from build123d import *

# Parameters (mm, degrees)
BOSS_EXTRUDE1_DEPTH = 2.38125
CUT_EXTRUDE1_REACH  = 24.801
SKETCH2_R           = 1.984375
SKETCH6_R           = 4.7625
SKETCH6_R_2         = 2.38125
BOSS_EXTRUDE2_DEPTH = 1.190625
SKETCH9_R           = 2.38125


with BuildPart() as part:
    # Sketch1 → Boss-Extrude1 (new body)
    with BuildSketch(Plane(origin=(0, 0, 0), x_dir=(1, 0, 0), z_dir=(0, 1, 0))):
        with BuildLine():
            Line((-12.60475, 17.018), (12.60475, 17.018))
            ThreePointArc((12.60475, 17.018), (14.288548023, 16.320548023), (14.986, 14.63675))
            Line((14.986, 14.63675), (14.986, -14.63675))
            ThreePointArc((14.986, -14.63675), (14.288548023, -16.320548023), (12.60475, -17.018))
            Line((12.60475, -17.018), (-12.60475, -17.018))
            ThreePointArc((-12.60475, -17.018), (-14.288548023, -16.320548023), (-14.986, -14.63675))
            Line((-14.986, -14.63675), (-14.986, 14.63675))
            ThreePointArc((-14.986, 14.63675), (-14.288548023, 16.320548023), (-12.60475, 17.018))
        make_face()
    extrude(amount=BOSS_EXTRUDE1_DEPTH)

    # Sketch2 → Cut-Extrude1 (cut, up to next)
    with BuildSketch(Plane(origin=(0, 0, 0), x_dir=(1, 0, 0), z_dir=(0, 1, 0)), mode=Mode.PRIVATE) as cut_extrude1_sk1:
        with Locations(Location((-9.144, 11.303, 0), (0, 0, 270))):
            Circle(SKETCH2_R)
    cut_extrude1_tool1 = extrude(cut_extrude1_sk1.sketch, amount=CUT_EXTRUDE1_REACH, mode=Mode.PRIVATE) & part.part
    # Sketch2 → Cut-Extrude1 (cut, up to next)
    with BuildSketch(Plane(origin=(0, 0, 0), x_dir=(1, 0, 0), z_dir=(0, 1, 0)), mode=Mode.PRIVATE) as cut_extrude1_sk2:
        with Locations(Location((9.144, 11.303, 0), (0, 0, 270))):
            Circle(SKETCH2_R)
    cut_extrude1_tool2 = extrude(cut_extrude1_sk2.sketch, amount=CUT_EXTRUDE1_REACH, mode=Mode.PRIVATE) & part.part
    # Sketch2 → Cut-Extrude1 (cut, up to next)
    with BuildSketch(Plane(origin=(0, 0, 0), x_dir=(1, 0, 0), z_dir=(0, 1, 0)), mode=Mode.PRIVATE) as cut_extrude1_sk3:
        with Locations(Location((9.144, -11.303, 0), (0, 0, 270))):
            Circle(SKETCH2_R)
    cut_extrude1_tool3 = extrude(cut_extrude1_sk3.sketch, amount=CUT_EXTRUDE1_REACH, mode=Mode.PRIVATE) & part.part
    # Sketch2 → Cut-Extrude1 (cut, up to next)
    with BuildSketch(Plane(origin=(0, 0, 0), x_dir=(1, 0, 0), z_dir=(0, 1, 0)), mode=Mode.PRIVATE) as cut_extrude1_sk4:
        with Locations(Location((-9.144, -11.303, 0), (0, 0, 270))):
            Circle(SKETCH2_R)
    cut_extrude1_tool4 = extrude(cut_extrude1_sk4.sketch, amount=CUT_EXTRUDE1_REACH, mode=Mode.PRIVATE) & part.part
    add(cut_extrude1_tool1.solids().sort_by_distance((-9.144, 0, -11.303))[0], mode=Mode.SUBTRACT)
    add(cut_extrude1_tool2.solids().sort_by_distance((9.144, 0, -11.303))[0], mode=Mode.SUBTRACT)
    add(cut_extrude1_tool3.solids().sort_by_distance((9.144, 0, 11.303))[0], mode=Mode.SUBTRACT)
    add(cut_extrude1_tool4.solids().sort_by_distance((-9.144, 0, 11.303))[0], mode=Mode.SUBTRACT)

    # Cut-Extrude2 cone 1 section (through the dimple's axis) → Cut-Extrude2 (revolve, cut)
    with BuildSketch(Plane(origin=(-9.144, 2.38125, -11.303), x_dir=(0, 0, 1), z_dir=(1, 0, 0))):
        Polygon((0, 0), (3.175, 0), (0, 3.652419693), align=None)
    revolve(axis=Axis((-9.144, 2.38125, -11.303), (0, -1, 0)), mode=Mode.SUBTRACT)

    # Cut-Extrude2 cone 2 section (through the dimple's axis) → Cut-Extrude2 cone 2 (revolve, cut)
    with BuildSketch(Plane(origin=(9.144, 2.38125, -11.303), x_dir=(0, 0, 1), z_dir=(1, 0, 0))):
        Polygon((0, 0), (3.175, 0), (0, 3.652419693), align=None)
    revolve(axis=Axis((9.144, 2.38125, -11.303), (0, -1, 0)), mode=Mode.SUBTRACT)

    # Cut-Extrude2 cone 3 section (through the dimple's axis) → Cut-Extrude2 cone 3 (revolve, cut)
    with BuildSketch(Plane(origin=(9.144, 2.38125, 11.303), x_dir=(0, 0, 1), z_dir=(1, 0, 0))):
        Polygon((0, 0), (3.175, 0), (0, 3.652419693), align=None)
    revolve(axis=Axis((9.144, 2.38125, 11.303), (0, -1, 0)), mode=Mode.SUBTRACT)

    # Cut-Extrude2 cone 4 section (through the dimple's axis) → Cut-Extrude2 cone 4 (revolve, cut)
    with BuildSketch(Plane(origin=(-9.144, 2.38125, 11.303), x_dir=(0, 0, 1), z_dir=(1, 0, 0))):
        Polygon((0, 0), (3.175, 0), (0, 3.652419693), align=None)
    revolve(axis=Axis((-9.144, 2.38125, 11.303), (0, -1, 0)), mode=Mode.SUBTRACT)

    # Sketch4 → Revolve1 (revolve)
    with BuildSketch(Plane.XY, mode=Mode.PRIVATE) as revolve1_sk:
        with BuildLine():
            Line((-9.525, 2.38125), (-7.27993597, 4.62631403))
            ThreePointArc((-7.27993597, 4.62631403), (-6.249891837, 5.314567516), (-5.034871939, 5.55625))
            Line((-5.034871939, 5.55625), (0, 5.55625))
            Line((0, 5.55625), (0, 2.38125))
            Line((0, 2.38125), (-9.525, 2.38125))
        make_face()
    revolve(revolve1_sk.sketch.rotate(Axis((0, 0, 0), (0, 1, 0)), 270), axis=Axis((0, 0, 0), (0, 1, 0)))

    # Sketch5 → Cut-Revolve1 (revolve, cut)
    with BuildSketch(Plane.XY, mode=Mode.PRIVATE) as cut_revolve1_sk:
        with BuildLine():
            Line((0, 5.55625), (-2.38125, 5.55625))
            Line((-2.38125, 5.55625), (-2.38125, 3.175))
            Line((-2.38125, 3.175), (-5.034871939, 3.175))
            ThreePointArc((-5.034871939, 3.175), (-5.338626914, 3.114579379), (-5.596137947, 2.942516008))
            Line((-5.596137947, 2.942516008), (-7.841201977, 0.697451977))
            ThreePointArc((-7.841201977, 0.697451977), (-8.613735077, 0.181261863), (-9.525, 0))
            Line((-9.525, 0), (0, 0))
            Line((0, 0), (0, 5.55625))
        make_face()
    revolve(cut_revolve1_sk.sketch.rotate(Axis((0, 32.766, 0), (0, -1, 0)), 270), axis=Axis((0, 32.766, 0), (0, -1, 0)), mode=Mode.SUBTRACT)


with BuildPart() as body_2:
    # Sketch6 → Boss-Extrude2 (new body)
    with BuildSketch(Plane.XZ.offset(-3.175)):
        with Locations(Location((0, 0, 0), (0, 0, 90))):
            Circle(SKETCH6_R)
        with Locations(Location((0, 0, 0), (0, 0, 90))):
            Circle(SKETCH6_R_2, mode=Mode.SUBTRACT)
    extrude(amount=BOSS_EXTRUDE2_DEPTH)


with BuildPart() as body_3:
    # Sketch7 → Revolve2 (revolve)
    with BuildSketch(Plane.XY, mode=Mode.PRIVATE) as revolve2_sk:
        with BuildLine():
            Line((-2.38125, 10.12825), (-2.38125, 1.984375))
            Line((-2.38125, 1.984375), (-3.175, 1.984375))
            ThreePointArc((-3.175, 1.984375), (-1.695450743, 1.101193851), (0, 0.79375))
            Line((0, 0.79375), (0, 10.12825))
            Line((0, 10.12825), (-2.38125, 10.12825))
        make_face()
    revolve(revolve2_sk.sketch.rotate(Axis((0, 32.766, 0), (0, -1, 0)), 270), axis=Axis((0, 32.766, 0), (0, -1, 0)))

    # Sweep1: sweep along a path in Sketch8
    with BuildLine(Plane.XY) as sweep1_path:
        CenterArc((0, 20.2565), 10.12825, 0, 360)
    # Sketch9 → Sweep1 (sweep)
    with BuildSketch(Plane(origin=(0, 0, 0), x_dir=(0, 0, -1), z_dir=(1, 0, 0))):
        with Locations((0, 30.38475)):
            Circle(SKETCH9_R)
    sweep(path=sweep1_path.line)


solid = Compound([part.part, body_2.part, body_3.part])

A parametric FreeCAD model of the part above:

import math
import FreeCAD as App
import Part
import Sketcher

V = App.Vector
Q = App.Units.Quantity

doc = App.newDocument("Part")
body = doc.addObject("PartDesign::Body", "Body")

# Sketch on XZ plane
sketch1 = body.newObject("Sketcher::SketchObject", "Sketch")
sketch1.AttachmentSupport = (doc.getObject("XZ_Plane"), [""])
sketch1.MapMode = "FlatFace"
sketch1.addGeometry(Part.LineSegment(V(12.6, -17, 0), V(-12.6, -17, 0)), False)
sketch1.addGeometry(Part.ArcOfCircle(Part.Circle(V(-12.6, -14.6, 0), V(0, 0, 1), 2.4), math.radians(180), math.radians(270)), False)
sketch1.addGeometry(Part.LineSegment(V(-15, -14.6, 0), V(-15, 14.6, 0)), False)
sketch1.addGeometry(Part.ArcOfCircle(Part.Circle(V(-12.6, 14.6, 0), V(0, 0, 1), 2.4), math.radians(90), math.radians(180)), False)
sketch1.addGeometry(Part.LineSegment(V(-12.6, 17, 0), V(12.6, 17, 0)), False)
sketch1.addGeometry(Part.ArcOfCircle(Part.Circle(V(12.6, 14.6, 0), V(0, 0, 1), 2.4), math.radians(0), math.radians(90)), False)
sketch1.addGeometry(Part.LineSegment(V(15, 14.6, 0), V(15, -14.6, 0)), False)
sketch1.addGeometry(Part.ArcOfCircle(Part.Circle(V(12.6, -14.6, 0), V(0, 0, 1), 2.4), math.radians(-90), math.radians(0)), False)
sketch1.addConstraint(Sketcher.Constraint("Tangent", 0, 2, 1, 2))
sketch1.addConstraint(Sketcher.Constraint("Tangent", 1, 1, 2, 1))
sketch1.addConstraint(Sketcher.Constraint("Tangent", 2, 2, 3, 2))
sketch1.addConstraint(Sketcher.Constraint("Tangent", 3, 1, 4, 1))
sketch1.addConstraint(Sketcher.Constraint("Tangent", 4, 2, 5, 2))
sketch1.addConstraint(Sketcher.Constraint("Tangent", 5, 1, 6, 1))
sketch1.addConstraint(Sketcher.Constraint("Tangent", 6, 2, 7, 2))
sketch1.addConstraint(Sketcher.Constraint("Tangent", 7, 1, 0, 1))
sketch1.addConstraint(Sketcher.Constraint("Horizontal", 0))
sketch1.addConstraint(Sketcher.Constraint("Vertical", 2))
sketch1.addConstraint(Sketcher.Constraint("Horizontal", 4))
sketch1.addConstraint(Sketcher.Constraint("Vertical", 6))
sketch1.addConstraint(Sketcher.Constraint("Equal", 1, 3))
sketch1.addConstraint(Sketcher.Constraint("Equal", 3, 5))
sketch1.addConstraint(Sketcher.Constraint("Equal", 5, 7))
sketch1.addConstraint(Sketcher.Constraint("Symmetric", 1, 3, 5, 3, -1, 1))
sketch1.addConstraint(Sketcher.Constraint("Radius", 1, Q("0.09375 in")))
sketch1.addConstraint(Sketcher.Constraint("DistanceY", 0, 2, -1, 1, Q("0.67 in")))
sketch1.addConstraint(Sketcher.Constraint("DistanceX", 1, 1, -1, 1, Q("0.59 in")))
pad1 = body.newObject("PartDesign::Pad", "Pad")
pad1.Profile = sketch1
pad1.Length = Q("0.09375 in")
pad1.Reversed = True

# Sketch on XZ plane
sketch2 = body.newObject("Sketcher::SketchObject", "Sketch001")
sketch2.AttachmentSupport = (doc.getObject("XZ_Plane"), [""])
sketch2.MapMode = "FlatFace"
sketch2.addGeometry(Part.Circle(V(-9.1, -11.3, 0), V(0, 0, 1), 2), False)
sketch2.addConstraint(Sketcher.Constraint("Diameter", 0, Q("0.15625 in")))
sketch2.addConstraint(Sketcher.Constraint("DistanceX", 0, 3, -1, 1, Q("0.36 in")))
sketch2.addConstraint(Sketcher.Constraint("DistanceY", 0, 3, -1, 1, Q("0.445 in")))
pocket1 = body.newObject("PartDesign::Pocket", "Pocket")
pocket1.Profile = sketch2
pocket1.Type = "UpToFirst"

# Sketch on XZ plane
sketch3 = body.newObject("Sketcher::SketchObject", "Sketch002")
sketch3.AttachmentSupport = (doc.getObject("XZ_Plane"), [""])
sketch3.MapMode = "FlatFace"
sketch3.addGeometry(Part.Circle(V(9.1, -11.3, 0), V(0, 0, 1), 2), False)
sketch3.addConstraint(Sketcher.Constraint("Diameter", 0, Q("0.15625 in")))
sketch3.addConstraint(Sketcher.Constraint("DistanceX", -1, 1, 0, 3, Q("0.36 in")))
sketch3.addConstraint(Sketcher.Constraint("DistanceY", 0, 3, -1, 1, Q("0.445 in")))
pocket2 = body.newObject("PartDesign::Pocket", "Pocket001")
pocket2.Profile = sketch3
pocket2.Type = "UpToFirst"

# Sketch on XZ plane
sketch4 = body.newObject("Sketcher::SketchObject", "Sketch003")
sketch4.AttachmentSupport = (doc.getObject("XZ_Plane"), [""])
sketch4.MapMode = "FlatFace"
sketch4.addGeometry(Part.Circle(V(9.1, 11.3, 0), V(0, 0, 1), 2), False)
sketch4.addConstraint(Sketcher.Constraint("Diameter", 0, Q("0.15625 in")))
sketch4.addConstraint(Sketcher.Constraint("DistanceX", -1, 1, 0, 3, Q("0.36 in")))
sketch4.addConstraint(Sketcher.Constraint("DistanceY", -1, 1, 0, 3, Q("0.445 in")))
pocket3 = body.newObject("PartDesign::Pocket", "Pocket002")
pocket3.Profile = sketch4
pocket3.Type = "UpToFirst"

# Sketch on XZ plane
sketch5 = body.newObject("Sketcher::SketchObject", "Sketch004")
sketch5.AttachmentSupport = (doc.getObject("XZ_Plane"), [""])
sketch5.MapMode = "FlatFace"
sketch5.addGeometry(Part.Circle(V(-9.1, 11.3, 0), V(0, 0, 1), 2), False)
sketch5.addConstraint(Sketcher.Constraint("Diameter", 0, Q("0.15625 in")))
sketch5.addConstraint(Sketcher.Constraint("DistanceX", 0, 3, -1, 1, Q("0.36 in")))
sketch5.addConstraint(Sketcher.Constraint("DistanceY", -1, 1, 0, 3, Q("0.445 in")))
pocket4 = body.newObject("PartDesign::Pocket", "Pocket003")
pocket4.Profile = sketch5
pocket4.Type = "UpToFirst"

# Sketch on YZ plane
sketch6 = body.newObject("Sketcher::SketchObject", "Sketch005")
sketch6.AttachmentSupport = (doc.getObject("YZ_Plane"), [""])
sketch6.MapMode = "FlatFace"
sketch6.AttachmentOffset = App.Placement(V(0, 0, -0.36 * 25.4), App.Rotation())
sketch6.addGeometry(Part.LineSegment(V(2.4, -11.3, 0), V(2.4, -8.1, 0)), False)
sketch6.addGeometry(Part.LineSegment(V(2.4, -8.1, 0), V(-1.3, -11.3, 0)), False)
sketch6.addGeometry(Part.LineSegment(V(-1.3, -11.3, 0), V(2.4, -11.3, 0)), False)
sketch6.addGeometry(Part.LineSegment(V(2.4, -11.3, 0), V(-1.3, -11.3, 0)), True)  # axis
sketch6.addConstraint(Sketcher.Constraint("Coincident", 0, 2, 1, 1))
sketch6.addConstraint(Sketcher.Constraint("Coincident", 1, 2, 2, 1))
sketch6.addConstraint(Sketcher.Constraint("Coincident", 2, 2, 0, 1))
sketch6.addConstraint(Sketcher.Constraint("Vertical", 0))
sketch6.addConstraint(Sketcher.Constraint("Horizontal", 2))
sketch6.addConstraint(Sketcher.Constraint("Horizontal", 3))
sketch6.addConstraint(Sketcher.Constraint("Coincident", 3, 1, 2, 2))
sketch6.addConstraint(Sketcher.Constraint("Equal", 2, 3))
sketch6.addConstraint(Sketcher.Constraint("Angle", 1, Q("-139 deg")))
sketch6.addConstraint(Sketcher.Constraint("DistanceY", 0, 1, 0, 2, Q("0.125 in")))
sketch6.addConstraint(Sketcher.Constraint("DistanceY", 0, 2, -1, 1, Q("0.32 in")))
sketch6.addConstraint(Sketcher.Constraint("DistanceX", -1, 1, 0, 2, Q("0.09375 in")))
groove = body.newObject("PartDesign::Groove", "Groove")
groove.Profile = sketch6
groove.ReferenceAxis = (sketch6, ["Axis0"])
groove.Angle = 360

# Sketch on YZ plane
sketch7 = body.newObject("Sketcher::SketchObject", "Sketch006")
sketch7.AttachmentSupport = (doc.getObject("YZ_Plane"), [""])
sketch7.MapMode = "FlatFace"
sketch7.AttachmentOffset = App.Placement(V(0, 0, 0.36 * 25.4), App.Rotation())
sketch7.addGeometry(Part.LineSegment(V(2.4, -11.3, 0), V(2.4, -8.1, 0)), False)
sketch7.addGeometry(Part.LineSegment(V(2.4, -8.1, 0), V(-1.3, -11.3, 0)), False)
sketch7.addGeometry(Part.LineSegment(V(-1.3, -11.3, 0), V(2.4, -11.3, 0)), False)
sketch7.addGeometry(Part.LineSegment(V(2.4, -11.3, 0), V(-1.3, -11.3, 0)), True)  # axis
sketch7.addConstraint(Sketcher.Constraint("Coincident", 0, 2, 1, 1))
sketch7.addConstraint(Sketcher.Constraint("Coincident", 1, 2, 2, 1))
sketch7.addConstraint(Sketcher.Constraint("Coincident", 2, 2, 0, 1))
sketch7.addConstraint(Sketcher.Constraint("Vertical", 0))
sketch7.addConstraint(Sketcher.Constraint("Horizontal", 2))
sketch7.addConstraint(Sketcher.Constraint("Horizontal", 3))
sketch7.addConstraint(Sketcher.Constraint("Coincident", 3, 1, 2, 2))
sketch7.addConstraint(Sketcher.Constraint("Equal", 2, 3))
sketch7.addConstraint(Sketcher.Constraint("Angle", 1, Q("-139 deg")))
sketch7.addConstraint(Sketcher.Constraint("DistanceY", 0, 1, 0, 2, Q("0.125 in")))
sketch7.addConstraint(Sketcher.Constraint("DistanceY", 0, 2, -1, 1, Q("0.32 in")))
sketch7.addConstraint(Sketcher.Constraint("DistanceX", -1, 1, 0, 2, Q("0.09375 in")))
groove2 = body.newObject("PartDesign::Groove", "Groove001")
groove2.Profile = sketch7
groove2.ReferenceAxis = (sketch7, ["Axis0"])
groove2.Angle = 360

# Sketch on YZ plane
sketch8 = body.newObject("Sketcher::SketchObject", "Sketch007")
sketch8.AttachmentSupport = (doc.getObject("YZ_Plane"), [""])
sketch8.MapMode = "FlatFace"
sketch8.AttachmentOffset = App.Placement(V(0, 0, 0.36 * 25.4), App.Rotation())
sketch8.addGeometry(Part.LineSegment(V(2.4, 11.3, 0), V(2.4, 14.5, 0)), False)
sketch8.addGeometry(Part.LineSegment(V(2.4, 14.5, 0), V(-1.3, 11.3, 0)), False)
sketch8.addGeometry(Part.LineSegment(V(-1.3, 11.3, 0), V(2.4, 11.3, 0)), False)
sketch8.addGeometry(Part.LineSegment(V(2.4, 11.3, 0), V(-1.3, 11.3, 0)), True)  # axis
sketch8.addConstraint(Sketcher.Constraint("Coincident", 0, 2, 1, 1))
sketch8.addConstraint(Sketcher.Constraint("Coincident", 1, 2, 2, 1))
sketch8.addConstraint(Sketcher.Constraint("Coincident", 2, 2, 0, 1))
sketch8.addConstraint(Sketcher.Constraint("Vertical", 0))
sketch8.addConstraint(Sketcher.Constraint("Horizontal", 2))
sketch8.addConstraint(Sketcher.Constraint("Horizontal", 3))
sketch8.addConstraint(Sketcher.Constraint("Coincident", 3, 1, 2, 2))
sketch8.addConstraint(Sketcher.Constraint("Equal", 2, 3))
sketch8.addConstraint(Sketcher.Constraint("Angle", 1, Q("-139 deg")))
sketch8.addConstraint(Sketcher.Constraint("DistanceY", 0, 1, 0, 2, Q("0.125 in")))
sketch8.addConstraint(Sketcher.Constraint("DistanceY", -1, 1, 0, 2, Q("0.57 in")))
sketch8.addConstraint(Sketcher.Constraint("DistanceX", -1, 1, 0, 2, Q("0.09375 in")))
groove3 = body.newObject("PartDesign::Groove", "Groove002")
groove3.Profile = sketch8
groove3.ReferenceAxis = (sketch8, ["Axis0"])
groove3.Angle = 360

# Sketch on YZ plane
sketch9 = body.newObject("Sketcher::SketchObject", "Sketch008")
sketch9.AttachmentSupport = (doc.getObject("YZ_Plane"), [""])
sketch9.MapMode = "FlatFace"
sketch9.AttachmentOffset = App.Placement(V(0, 0, -0.36 * 25.4), App.Rotation())
sketch9.addGeometry(Part.LineSegment(V(2.4, 11.3, 0), V(2.4, 14.5, 0)), False)
sketch9.addGeometry(Part.LineSegment(V(2.4, 14.5, 0), V(-1.3, 11.3, 0)), False)
sketch9.addGeometry(Part.LineSegment(V(-1.3, 11.3, 0), V(2.4, 11.3, 0)), False)
sketch9.addGeometry(Part.LineSegment(V(2.4, 11.3, 0), V(-1.3, 11.3, 0)), True)  # axis
sketch9.addConstraint(Sketcher.Constraint("Coincident", 0, 2, 1, 1))
sketch9.addConstraint(Sketcher.Constraint("Coincident", 1, 2, 2, 1))
sketch9.addConstraint(Sketcher.Constraint("Coincident", 2, 2, 0, 1))
sketch9.addConstraint(Sketcher.Constraint("Vertical", 0))
sketch9.addConstraint(Sketcher.Constraint("Horizontal", 2))
sketch9.addConstraint(Sketcher.Constraint("Horizontal", 3))
sketch9.addConstraint(Sketcher.Constraint("Coincident", 3, 1, 2, 2))
sketch9.addConstraint(Sketcher.Constraint("Equal", 2, 3))
sketch9.addConstraint(Sketcher.Constraint("Angle", 1, Q("-139 deg")))
sketch9.addConstraint(Sketcher.Constraint("DistanceY", 0, 1, 0, 2, Q("0.125 in")))
sketch9.addConstraint(Sketcher.Constraint("DistanceY", -1, 1, 0, 2, Q("0.57 in")))
sketch9.addConstraint(Sketcher.Constraint("DistanceX", -1, 1, 0, 2, Q("0.09375 in")))
groove4 = body.newObject("PartDesign::Groove", "Groove003")
groove4.Profile = sketch9
groove4.ReferenceAxis = (sketch9, ["Axis0"])
groove4.Angle = 360

# Sketch on XY plane
sketch10 = body.newObject("Sketcher::SketchObject", "Sketch009")
sketch10.AttachmentSupport = (doc.getObject("XY_Plane"), [""])
sketch10.MapMode = "FlatFace"
sketch10.addGeometry(Part.LineSegment(V(-7.3, 4.6, 0), V(-9.5, 2.4, 0)), False)
sketch10.addGeometry(Part.LineSegment(V(-9.5, 2.4, 0), V(0, 2.4, 0)), False)
sketch10.addGeometry(Part.LineSegment(V(0, 2.4, 0), V(0, 5.6, 0)), False)
sketch10.addGeometry(Part.LineSegment(V(0, 5.6, 0), V(-5, 5.6, 0)), False)
sketch10.addGeometry(Part.ArcOfCircle(Part.Circle(V(-5, 2.4, 0), V(0, 0, 1), 3.2), math.radians(90), math.radians(135)), False)
sketch10.addConstraint(Sketcher.Constraint("Coincident", 0, 2, 1, 1))
sketch10.addConstraint(Sketcher.Constraint("Coincident", 1, 2, 2, 1))
sketch10.addConstraint(Sketcher.Constraint("Coincident", 2, 2, 3, 1))
sketch10.addConstraint(Sketcher.Constraint("Tangent", 3, 2, 4, 1))
sketch10.addConstraint(Sketcher.Constraint("Tangent", 4, 2, 0, 1))
sketch10.addConstraint(Sketcher.Constraint("Horizontal", 1))
sketch10.addConstraint(Sketcher.Constraint("Vertical", 2))
sketch10.addConstraint(Sketcher.Constraint("Horizontal", 3))
sketch10.addConstraint(Sketcher.Constraint("PointOnObject", 1, 2, -2))
sketch10.addConstraint(Sketcher.Constraint("Horizontal", 4, 3, 0, 2))
sketch10.addConstraint(Sketcher.Constraint("Angle", 0, Q("-135 deg")))
sketch10.addConstraint(Sketcher.Constraint("Radius", 4, Q("0.125 in")))
sketch10.addConstraint(Sketcher.Constraint("DistanceX", 1, 1, 1, 2, Q("0.375 in")))
sketch10.addConstraint(Sketcher.Constraint("DistanceY", -1, 1, 4, 3, Q("0.09375 in")))
revolution = body.newObject("PartDesign::Revolution", "Revolution")
revolution.Profile = sketch10
revolution.ReferenceAxis = (sketch10, ["V_Axis"])
revolution.Angle = 360

# Sketch on XY plane
sketch11 = body.newObject("Sketcher::SketchObject", "Sketch010")
sketch11.AttachmentSupport = (doc.getObject("XY_Plane"), [""])
sketch11.MapMode = "FlatFace"
sketch11.addGeometry(Part.LineSegment(V(0, 5.6, 0), V(-2.4, 5.6, 0)), False)
sketch11.addGeometry(Part.LineSegment(V(-2.4, 5.6, 0), V(-2.4, 3.2, 0)), False)
sketch11.addGeometry(Part.LineSegment(V(-2.4, 3.2, 0), V(-5, 3.2, 0)), False)
sketch11.addGeometry(Part.ArcOfCircle(Part.Circle(V(-5, 2.4, 0), V(0, 0, 1), 0.8), math.radians(90), math.radians(135)), False)
sketch11.addGeometry(Part.LineSegment(V(-5.6, 2.9, 0), V(-7.8, 0.7, 0)), False)
sketch11.addGeometry(Part.ArcOfCircle(Part.Circle(V(-9.5, 2.4, 0), V(0, 0, 1), 2.4), math.radians(-90), math.radians(-45)), False)
sketch11.addGeometry(Part.LineSegment(V(-9.5, 0, 0), V(0, 0, 0)), False)
sketch11.addGeometry(Part.LineSegment(V(0, 0, 0), V(0, 5.6, 0)), False)
sketch11.addConstraint(Sketcher.Constraint("Coincident", 0, 2, 1, 1))
sketch11.addConstraint(Sketcher.Constraint("Coincident", 1, 2, 2, 1))
sketch11.addConstraint(Sketcher.Constraint("Tangent", 2, 2, 3, 1))
sketch11.addConstraint(Sketcher.Constraint("Tangent", 3, 2, 4, 1))
sketch11.addConstraint(Sketcher.Constraint("Tangent", 4, 2, 5, 2))
sketch11.addConstraint(Sketcher.Constraint("Tangent", 5, 1, 6, 1))
sketch11.addConstraint(Sketcher.Constraint("Coincident", 6, 2, 7, 1))
sketch11.addConstraint(Sketcher.Constraint("Coincident", 7, 2, 0, 1))
sketch11.addConstraint(Sketcher.Constraint("Horizontal", 0))
sketch11.addConstraint(Sketcher.Constraint("Vertical", 1))
sketch11.addConstraint(Sketcher.Constraint("Horizontal", 2))
sketch11.addConstraint(Sketcher.Constraint("Horizontal", 6))
sketch11.addConstraint(Sketcher.Constraint("Vertical", 7))
sketch11.addConstraint(Sketcher.Constraint("Coincident", 6, 2, -1, 1))
sketch11.addConstraint(Sketcher.Constraint("Horizontal", 3, 3, 5, 3))
sketch11.addConstraint(Sketcher.Constraint("Equal", 0, 1))
sketch11.addConstraint(Sketcher.Constraint("Angle", 4, Q("-135 deg")))
sketch11.addConstraint(Sketcher.Constraint("Radius", 3, Q("0.03125 in")))
sketch11.addConstraint(Sketcher.Constraint("Radius", 5, Q("0.09375 in")))
sketch11.addConstraint(Sketcher.Constraint("DistanceX", 0, 2, 0, 1, Q("0.09375 in")))
sketch11.addConstraint(Sketcher.Constraint("DistanceX", 6, 1, 6, 2, Q("0.375 in")))
groove5 = body.newObject("PartDesign::Groove", "Groove004")
groove5.Profile = sketch11
groove5.ReferenceAxis = (sketch11, ["V_Axis"])
groove5.Angle = 360
body2 = doc.addObject("PartDesign::Body", "Body001")

# Sketch on XZ plane
sketch12 = body2.newObject("Sketcher::SketchObject", "Sketch011")
sketch12.AttachmentSupport = (doc.getObject("XZ_Plane001"), [""])
sketch12.MapMode = "FlatFace"
sketch12.AttachmentOffset = App.Placement(V(0, 0, -0.125 * 25.4), App.Rotation())
sketch12.addGeometry(Part.Circle(V(0, 0, 0), V(0, 0, 1), 4.8), False)
sketch12.addGeometry(Part.Circle(V(0, 0, 0), V(0, 0, 1), 2.4), False)
sketch12.addConstraint(Sketcher.Constraint("Coincident", 0, 3, -1, 1))
sketch12.addConstraint(Sketcher.Constraint("Coincident", 1, 3, -1, 1))
sketch12.addConstraint(Sketcher.Constraint("Diameter", 0, Q("0.375 in")))
sketch12.addConstraint(Sketcher.Constraint("Diameter", 1, Q("0.1875 in")))
pad2 = body2.newObject("PartDesign::Pad", "Pad001")
pad2.Profile = sketch12
pad2.Length = Q("0.046875 in")
body3 = doc.addObject("PartDesign::Body", "Body002")

# Sketch on XY plane
sketch13 = body3.newObject("Sketcher::SketchObject", "Sketch012")
sketch13.AttachmentSupport = (doc.getObject("XY_Plane002"), [""])
sketch13.MapMode = "FlatFace"
sketch13.addGeometry(Part.LineSegment(V(-2.4, 10.1, 0), V(-2.4, 2, 0)), False)
sketch13.addGeometry(Part.LineSegment(V(-2.4, 2, 0), V(-3.2, 2, 0)), False)
sketch13.addGeometry(Part.ArcOfCircle(Part.Circle(V(0, 5.6, 0), V(0, 0, 1), 4.8), math.radians(-131), math.radians(-90)), False)
sketch13.addGeometry(Part.LineSegment(V(0, 0.8, 0), V(0, 10.1, 0)), False)
sketch13.addGeometry(Part.LineSegment(V(0, 10.1, 0), V(-2.4, 10.1, 0)), False)
sketch13.addConstraint(Sketcher.Constraint("Coincident", 0, 2, 1, 1))
sketch13.addConstraint(Sketcher.Constraint("Coincident", 1, 2, 2, 1))
sketch13.addConstraint(Sketcher.Constraint("Coincident", 2, 2, 3, 1))
sketch13.addConstraint(Sketcher.Constraint("Coincident", 3, 2, 4, 1))
sketch13.addConstraint(Sketcher.Constraint("Coincident", 4, 2, 0, 1))
sketch13.addConstraint(Sketcher.Constraint("Vertical", 0))
sketch13.addConstraint(Sketcher.Constraint("Horizontal", 1))
sketch13.addConstraint(Sketcher.Constraint("Vertical", 3))
sketch13.addConstraint(Sketcher.Constraint("Horizontal", 4))
sketch13.addConstraint(Sketcher.Constraint("PointOnObject", 2, 3, -2))
sketch13.addConstraint(Sketcher.Constraint("PointOnObject", 2, 2, -2))
sketch13.addConstraint(Sketcher.Constraint("DistanceX", 1, 2, 1, 1, Q("0.03125 in")))
sketch13.addConstraint(Sketcher.Constraint("DistanceX", 4, 2, 4, 1, Q("0.09375 in")))
sketch13.addConstraint(Sketcher.Constraint("DistanceY", 3, 1, 3, 2, Q("0.3675 in")))
sketch13.addConstraint(Sketcher.Constraint("DistanceY", -1, 1, 0, 2, Q("0.078125 in")))
sketch13.addConstraint(Sketcher.Constraint("DistanceY", -1, 1, 2, 2, Q("0.03125 in")))
revolution2 = body3.newObject("PartDesign::Revolution", "Revolution001")
revolution2.Profile = sketch13
revolution2.ReferenceAxis = (sketch13, ["V_Axis"])
revolution2.Angle = 360

# Sketch on YZ plane
sketch14 = body3.newObject("Sketcher::SketchObject", "Sketch013")
sketch14.AttachmentSupport = (doc.getObject("YZ_Plane002"), [""])
sketch14.MapMode = "FlatFace"
sketch14.addGeometry(Part.Circle(V(30.4, 0, 0), V(0, 0, 1), 2.4), False)
sketch14.addConstraint(Sketcher.Constraint("PointOnObject", 0, 3, -1))
sketch14.addConstraint(Sketcher.Constraint("Diameter", 0, Q("0.1875 in")))
sketch14.addConstraint(Sketcher.Constraint("DistanceX", -1, 1, 0, 3, 30.38475))

# Sketch on XY plane
sketch15 = body3.newObject("Sketcher::SketchObject", "Sketch014")
sketch15.AttachmentSupport = (doc.getObject("XY_Plane002"), [""])
sketch15.MapMode = "FlatFace"
sketch15.addGeometry(Part.Circle(V(0, 20, 0), V(0, 0, 1), 10), False)
sketch15.addConstraint(Sketcher.Constraint("PointOnObject", 0, 3, -2))
sketch15.addConstraint(Sketcher.Constraint("Diameter", 0, Q("0.7975 in")))
sketch15.addConstraint(Sketcher.Constraint("DistanceY", -1, 1, 0, 3, Q("0.7975 in")))
doc.recompute()

additivepipe = body3.newObject("PartDesign::AdditivePipe", "AdditivePipe")
additivepipe.Profile = sketch14
additivepipe.Spine = (sketch15, ["Edge1"])

doc.recompute()
